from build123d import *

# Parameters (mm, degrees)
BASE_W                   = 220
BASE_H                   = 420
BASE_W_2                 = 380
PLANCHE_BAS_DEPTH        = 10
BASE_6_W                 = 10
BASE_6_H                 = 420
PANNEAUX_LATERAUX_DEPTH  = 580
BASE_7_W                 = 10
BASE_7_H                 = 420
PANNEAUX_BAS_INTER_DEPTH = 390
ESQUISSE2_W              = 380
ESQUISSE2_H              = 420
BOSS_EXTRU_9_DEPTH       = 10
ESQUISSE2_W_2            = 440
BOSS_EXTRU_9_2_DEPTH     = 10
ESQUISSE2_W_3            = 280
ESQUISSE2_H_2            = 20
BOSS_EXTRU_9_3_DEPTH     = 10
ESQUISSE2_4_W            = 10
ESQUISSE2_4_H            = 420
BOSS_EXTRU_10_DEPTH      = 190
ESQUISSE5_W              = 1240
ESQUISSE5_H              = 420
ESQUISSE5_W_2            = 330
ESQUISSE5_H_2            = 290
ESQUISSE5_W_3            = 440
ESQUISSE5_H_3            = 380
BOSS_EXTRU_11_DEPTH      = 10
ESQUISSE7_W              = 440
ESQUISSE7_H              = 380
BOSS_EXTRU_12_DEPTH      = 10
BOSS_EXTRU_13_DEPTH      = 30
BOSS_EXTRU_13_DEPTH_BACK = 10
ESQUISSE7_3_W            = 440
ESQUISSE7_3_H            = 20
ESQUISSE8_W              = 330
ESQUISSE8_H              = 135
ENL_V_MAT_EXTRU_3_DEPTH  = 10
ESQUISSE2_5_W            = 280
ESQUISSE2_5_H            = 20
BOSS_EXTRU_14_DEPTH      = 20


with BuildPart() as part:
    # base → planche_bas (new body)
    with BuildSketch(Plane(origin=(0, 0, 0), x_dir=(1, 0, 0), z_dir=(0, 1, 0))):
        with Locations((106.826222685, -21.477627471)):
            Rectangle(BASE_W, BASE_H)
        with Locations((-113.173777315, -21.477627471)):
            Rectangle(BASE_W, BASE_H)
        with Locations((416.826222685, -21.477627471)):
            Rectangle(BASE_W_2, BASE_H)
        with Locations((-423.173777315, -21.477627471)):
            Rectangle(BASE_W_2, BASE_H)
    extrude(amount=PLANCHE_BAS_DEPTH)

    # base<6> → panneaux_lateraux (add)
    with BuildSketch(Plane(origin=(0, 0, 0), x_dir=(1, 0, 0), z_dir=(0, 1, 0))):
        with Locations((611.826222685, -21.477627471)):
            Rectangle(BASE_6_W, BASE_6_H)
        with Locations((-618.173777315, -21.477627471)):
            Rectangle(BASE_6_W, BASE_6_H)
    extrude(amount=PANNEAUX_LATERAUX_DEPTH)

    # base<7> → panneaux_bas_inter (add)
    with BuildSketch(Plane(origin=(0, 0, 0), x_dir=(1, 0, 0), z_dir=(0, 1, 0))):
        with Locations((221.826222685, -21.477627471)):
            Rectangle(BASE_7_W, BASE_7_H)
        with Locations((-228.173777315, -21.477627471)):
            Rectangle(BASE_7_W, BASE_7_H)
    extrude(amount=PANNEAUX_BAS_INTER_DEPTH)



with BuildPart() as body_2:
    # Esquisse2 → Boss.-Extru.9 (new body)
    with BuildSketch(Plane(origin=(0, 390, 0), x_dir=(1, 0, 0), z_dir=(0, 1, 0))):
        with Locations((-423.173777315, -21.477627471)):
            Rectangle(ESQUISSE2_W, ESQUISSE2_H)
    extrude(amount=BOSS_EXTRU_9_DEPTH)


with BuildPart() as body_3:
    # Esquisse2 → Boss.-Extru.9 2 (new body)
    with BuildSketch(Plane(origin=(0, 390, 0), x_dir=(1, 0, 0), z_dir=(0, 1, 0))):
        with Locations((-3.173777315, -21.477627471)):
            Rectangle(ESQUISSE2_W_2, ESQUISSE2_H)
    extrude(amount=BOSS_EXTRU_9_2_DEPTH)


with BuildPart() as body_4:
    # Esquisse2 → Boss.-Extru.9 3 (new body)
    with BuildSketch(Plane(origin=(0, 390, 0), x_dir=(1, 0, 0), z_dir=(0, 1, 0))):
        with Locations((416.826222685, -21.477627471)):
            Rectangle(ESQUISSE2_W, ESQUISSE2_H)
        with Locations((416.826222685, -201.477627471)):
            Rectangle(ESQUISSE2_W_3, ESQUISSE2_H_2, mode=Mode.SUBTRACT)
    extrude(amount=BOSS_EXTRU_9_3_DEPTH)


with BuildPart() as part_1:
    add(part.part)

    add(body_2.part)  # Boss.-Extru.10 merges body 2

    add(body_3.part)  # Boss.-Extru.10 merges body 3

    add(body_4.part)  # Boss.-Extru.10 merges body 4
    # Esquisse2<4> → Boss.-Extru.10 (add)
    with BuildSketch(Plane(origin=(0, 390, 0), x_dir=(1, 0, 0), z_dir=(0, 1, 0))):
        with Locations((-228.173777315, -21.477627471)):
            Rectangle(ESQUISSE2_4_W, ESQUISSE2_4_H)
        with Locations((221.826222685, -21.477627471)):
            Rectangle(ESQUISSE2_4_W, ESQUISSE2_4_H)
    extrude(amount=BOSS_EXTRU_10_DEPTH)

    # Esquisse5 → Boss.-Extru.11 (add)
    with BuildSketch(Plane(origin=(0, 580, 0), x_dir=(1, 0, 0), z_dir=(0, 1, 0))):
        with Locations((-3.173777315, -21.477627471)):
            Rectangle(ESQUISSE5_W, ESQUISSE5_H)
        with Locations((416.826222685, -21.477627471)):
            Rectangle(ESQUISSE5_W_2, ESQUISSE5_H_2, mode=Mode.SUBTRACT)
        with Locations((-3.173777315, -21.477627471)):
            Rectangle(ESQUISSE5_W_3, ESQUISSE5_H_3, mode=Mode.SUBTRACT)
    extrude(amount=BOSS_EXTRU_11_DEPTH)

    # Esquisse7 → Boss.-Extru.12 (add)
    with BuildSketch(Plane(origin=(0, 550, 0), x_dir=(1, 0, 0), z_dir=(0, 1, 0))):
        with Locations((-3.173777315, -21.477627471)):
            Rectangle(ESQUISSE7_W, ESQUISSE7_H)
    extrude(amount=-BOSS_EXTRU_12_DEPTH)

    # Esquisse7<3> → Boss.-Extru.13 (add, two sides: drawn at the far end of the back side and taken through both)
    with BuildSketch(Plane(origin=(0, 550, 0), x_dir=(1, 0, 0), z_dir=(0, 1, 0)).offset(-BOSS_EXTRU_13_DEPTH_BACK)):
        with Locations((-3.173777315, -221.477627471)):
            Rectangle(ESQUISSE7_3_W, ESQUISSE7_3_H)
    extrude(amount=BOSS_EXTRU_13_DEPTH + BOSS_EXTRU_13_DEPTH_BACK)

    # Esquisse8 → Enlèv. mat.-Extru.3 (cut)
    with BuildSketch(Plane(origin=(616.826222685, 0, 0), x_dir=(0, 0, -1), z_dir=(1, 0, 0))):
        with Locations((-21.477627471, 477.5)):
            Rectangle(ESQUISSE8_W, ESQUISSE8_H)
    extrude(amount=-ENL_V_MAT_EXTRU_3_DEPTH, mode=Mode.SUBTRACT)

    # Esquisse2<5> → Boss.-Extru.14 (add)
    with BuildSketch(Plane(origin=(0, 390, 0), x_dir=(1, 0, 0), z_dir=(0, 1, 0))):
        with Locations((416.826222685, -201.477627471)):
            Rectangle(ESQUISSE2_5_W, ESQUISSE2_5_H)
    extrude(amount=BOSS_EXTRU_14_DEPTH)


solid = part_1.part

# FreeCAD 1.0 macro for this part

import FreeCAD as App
import Part
import Sketcher
from FreeCAD import Vector


def add_polygon(sketch, points):
    """Adds a closed chain of lines whose ends are joined by coincident constraints."""
    first, n = sketch.GeometryCount, len(points)
    for a, b in zip(points, points[1:] + points[:1]):
        sketch.addGeometry(Part.LineSegment(App.Vector(*a, 0), App.Vector(*b, 0)), False)
    for i in range(n):
        sketch.addConstraint(Sketcher.Constraint("Coincident", first + i, 2, first + (i + 1) % n, 1))

doc = App.newDocument("Part")
body = doc.addObject("PartDesign::Body", "Body")
body.AllowCompound = True

# Sketch on XZ plane
sketch1 = body.newObject("Sketcher::SketchObject", "Sketch")
sketch1.AttachmentSupport = (doc.getObject("XZ_Plane"), [""])
sketch1.MapMode = "FlatFace"
add_polygon(sketch1, [(216.826223, 231.477627), (216.826223, -188.522373), (-223.173777, -188.522373), (-223.173777, 231.477627)])  # lines 0-3
add_polygon(sketch1, [(226.826223, -188.522373), (226.826223, 231.477627), (606.826223, 231.477627), (606.826223, -188.522373)])  # lines 4-7
add_polygon(sketch1, [(-613.173777, -188.522373), (-613.173777, 231.477627), (-233.173777, 231.477627), (-233.173777, -188.522373)])  # lines 8-11
sketch1.addConstraint([
    Sketcher.Constraint("Vertical", 0),
    Sketcher.Constraint("Horizontal", 1),
    Sketcher.Constraint("Vertical", 2),
    Sketcher.Constraint("Horizontal", 3),
    Sketcher.Constraint("Vertical", 4),
    Sketcher.Constraint("Horizontal", 5),
    Sketcher.Constraint("Vertical", 6),
    Sketcher.Constraint("Horizontal", 7),
    Sketcher.Constraint("Vertical", 8),
    Sketcher.Constraint("Horizontal", 9),
    Sketcher.Constraint("Vertical", 10),
    Sketcher.Constraint("Horizontal", 11),
    Sketcher.Constraint("Horizontal", 3, 2, 4, 2),
    Sketcher.Constraint("Horizontal", 1, 2, 6, 2),
    Sketcher.Constraint("Horizontal", 5, 2, 8, 2),
    Sketcher.Constraint("Horizontal", 7, 2, 10, 2),
    Sketcher.Constraint("Equal", 7, 9),
    Sketcher.Constraint("DistanceX", 1, 2, 1, 1, 440.0),
    Sketcher.Constraint("DistanceX", 5, 1, 5, 2, 380.0),
    Sketcher.Constraint("DistanceY", 0, 2, 0, 1, 420.0),
    Sketcher.Constraint("DistanceX", 3, 2, 4, 2, 10.0),
    Sketcher.Constraint("DistanceX", 8, 2, 2, 2, 390.0),
    Sketcher.Constraint("DistanceX", -1, 1, 0, 2, 216.826223),
    Sketcher.Constraint("DistanceY", 0, 2, -1, 1, 188.522373),
])
pad1 = body.newObject("PartDesign::Pad", "Pad")
pad1.Profile = sketch1
pad1.Length = 10
pad1.Reversed = True

# Sketch on XZ plane
sketch2 = body.newObject("Sketcher::SketchObject", "Sketch001")
sketch2.AttachmentSupport = (doc.getObject("XZ_Plane"), [""])
sketch2.MapMode = "FlatFace"
add_polygon(sketch2, [(606.826223, -188.522373), (606.826223, 231.477627), (616.826223, 231.477627), (616.826223, -188.522373)])  # lines 0-3
add_polygon(sketch2, [(-623.173777, -188.522373), (-623.173777, 231.477627), (-613.173777, 231.477627), (-613.173777, -188.522373)])  # lines 4-7
sketch2.addConstraint([
    Sketcher.Constraint("Vertical", 0),
    Sketcher.Constraint("Horizontal", 1),
    Sketcher.Constraint("Vertical", 2),
    Sketcher.Constraint("Horizontal", 3),
    Sketcher.Constraint("Vertical", 4),
    Sketcher.Constraint("Horizontal", 5),
    Sketcher.Constraint("Vertical", 6),
    Sketcher.Constraint("Horizontal", 7),
    Sketcher.Constraint("Horizontal", 1, 2, 4, 2),
    Sketcher.Constraint("Horizontal", 3, 2, 6, 2),
    Sketcher.Constraint("Equal", 3, 5),
    Sketcher.Constraint("DistanceX", 1, 1, 1, 2, 10.0),
    Sketcher.Constraint("DistanceY", 0, 1, 0, 2, 420.0),
    Sketcher.Constraint("DistanceX", 4, 2, 0, 2, 1230.0),
    Sketcher.Constraint("DistanceX", -1, 1, 0, 2, 606.826223),
    Sketcher.Constraint("DistanceY", -1, 1, 0, 2, 231.477627),
])
pad2 = body.newObject("PartDesign::Pad", "Pad001")
pad2.Profile = sketch2
pad2.Length = 580
pad2.Reversed = True

# Sketch on XZ plane
sketch3 = body.newObject("Sketcher::SketchObject", "Sketch002")
sketch3.AttachmentSupport = (doc.getObject("XZ_Plane"), [""])
sketch3.MapMode = "FlatFace"
add_polygon(sketch3, [(216.826223, -188.522373), (216.826223, 231.477627), (226.826223, 231.477627), (226.826223, -188.522373)])  # lines 0-3
add_polygon(sketch3, [(-233.173777, -188.522373), (-233.173777, 231.477627), (-223.173777, 231.477627), (-223.173777, -188.522373)])  # lines 4-7
sketch3.addConstraint([
    Sketcher.Constraint("Vertical", 0),
    Sketcher.Constraint("Horizontal", 1),
    Sketcher.Constraint("Vertical", 2),
    Sketcher.Constraint("Horizontal", 3),
    Sketcher.Constraint("Vertical", 4),
    Sketcher.Constraint("Horizontal", 5),
    Sketcher.Constraint("Vertical", 6),
    Sketcher.Constraint("Horizontal", 7),
    Sketcher.Constraint("Horizontal", 1, 2, 4, 2),
    Sketcher.Constraint("Horizontal", 3, 2, 6, 2),
    Sketcher.Constraint("Equal", 3, 5),
    Sketcher.Constraint("DistanceX", 1, 1, 1, 2, 10.0),
    Sketcher.Constraint("DistanceY", 0, 1, 0, 2, 420.0),
    Sketcher.Constraint("DistanceX", 4, 2, 0, 2, 450.0),
    Sketcher.Constraint("DistanceX", -1, 1, 0, 2, 216.826223),
    Sketcher.Constraint("DistanceY", -1, 1, 0, 2, 231.477627),
])
pad3 = body.newObject("PartDesign::Pad", "Pad002")
pad3.Profile = sketch3
pad3.Length = 390
pad3.Reversed = True
body2 = doc.addObject("PartDesign::Body", "Body001")

# Sketch on XZ plane
sketch4 = body2.newObject("Sketcher::SketchObject", "Sketch003")
sketch4.AttachmentSupport = (doc.getObject("XZ_Plane001"), [""])
sketch4.MapMode = "FlatFace"
sketch4.AttachmentOffset = App.Placement(Vector(0, 0, -390), App.Rotation())
add_polygon(sketch4, [(-613.173777, -188.522373), (-613.173777, 231.477627), (-233.173777, 231.477627), (-233.173777, -188.522373)])  # lines 0-3
sketch4.addConstraint([
    Sketcher.Constraint("Vertical", 0),
    Sketcher.Constraint("Horizontal", 1),
    Sketcher.Constraint("Vertical", 2),
    Sketcher.Constraint("Horizontal", 3),
    Sketcher.Constraint("DistanceX", 1, 1, 1, 2, 380.0),
    Sketcher.Constraint("DistanceY", 0, 1, 0, 2, 420.0),
    Sketcher.Constraint("DistanceX", 0, 2, -1, 1, 613.173777),
    Sketcher.Constraint("DistanceY", -1, 1, 0, 2, 231.477627),
])
pad4 = body2.newObject("PartDesign::Pad", "Pad003")
pad4.Profile = sketch4
pad4.Length = 10
pad4.Reversed = True
body3 = doc.addObject("PartDesign::Body", "Body002")

# Sketch on XZ plane
sketch5 = body3.newObject("Sketcher::SketchObject", "Sketch004")
sketch5.AttachmentSupport = (doc.getObject("XZ_Plane002"), [""])
sketch5.MapMode = "FlatFace"
sketch5.AttachmentOffset = App.Placement(Vector(0, 0, -390), App.Rotation())
add_polygon(sketch5, [(-223.173777, -188.522373), (-223.173777, 231.477627), (216.826223, 231.477627), (216.826223, -188.522373)])  # lines 0-3
sketch5.addConstraint([
    Sketcher.Constraint("Vertical", 0),
    Sketcher.Constraint("Horizontal", 1),
    Sketcher.Constraint("Vertical", 2),
    Sketcher.Constraint("Horizontal", 3),
    Sketcher.Constraint("DistanceX", 1, 1, 1, 2, 440.0),
    Sketcher.Constraint("DistanceY", 0, 1, 0, 2, 420.0),
    Sketcher.Constraint("DistanceX", 0, 2, -1, 1, 223.173777),
    Sketcher.Constraint("DistanceY", -1, 1, 0, 2, 231.477627),
])
pad5 = body3.newObject("PartDesign::Pad", "Pad004")
pad5.Profile = sketch5
pad5.Length = 10
pad5.Reversed = True
body4 = doc.addObject("PartDesign::Body", "Body003")

# Sketch on XZ plane
sketch6 = body4.newObject("Sketcher::SketchObject", "Sketch005")
sketch6.AttachmentSupport = (doc.getObject("XZ_Plane003"), [""])
sketch6.MapMode = "FlatFace"
sketch6.AttachmentOffset = App.Placement(Vector(0, 0, -390), App.Rotation())
add_polygon(sketch6, [(226.826223, -188.522373), (226.826223, 231.477627), (606.826223, 231.477627), (606.826223, -188.522373)])  # lines 0-3
add_polygon(sketch6, [(556.826223, 211.477627), (276.826223, 211.477627), (276.826223, 191.477627), (556.826223, 191.477627)])  # lines 4-7
sketch6.addConstraint([
    Sketcher.Constraint("Vertical", 0),
    Sketcher.Constraint("Horizontal", 1),
    Sketcher.Constraint("Vertical", 2),
    Sketcher.Constraint("Horizontal", 3),
    Sketcher.Constraint("Horizontal", 4),
    Sketcher.Constraint("Vertical", 5),
    Sketcher.Constraint("Horizontal", 6),
    Sketcher.Constraint("Vertical", 7),
    Sketcher.Constraint("DistanceX", 1, 1, 1, 2, 380.0),
    Sketcher.Constraint("DistanceX", 4, 2, 4, 1, 280.0),
    Sketcher.Constraint("DistanceY", 0, 1, 0, 2, 420.0),
    Sketcher.Constraint("DistanceY", 5, 2, 5, 1, 20.0),
    Sketcher.Constraint("DistanceX", 0, 2, 4, 2, 50.0),
    Sketcher.Constraint("DistanceY", 4, 2, 0, 2, 20.0),
    Sketcher.Constraint("DistanceX", -1, 1, 0, 2, 226.826223),
    Sketcher.Constraint("DistanceY", -1, 1, 0, 2, 231.477627),
])
pad6 = body4.newObject("PartDesign::Pad", "Pad005")
pad6.Profile = sketch6
pad6.Length = 10
pad6.Reversed = True
body.AllowCompound = True
doc.recompute()

boolean = body.newObject("PartDesign::Boolean", "Boolean")
boolean.Type = "Fuse"
boolean.addObjects([body2])
doc.recompute()

boolean2 = body.newObject("PartDesign::Boolean", "Boolean001")
boolean2.Type = "Fuse"
boolean2.addObjects([body3])
doc.recompute()

boolean3 = body.newObject("PartDesign::Boolean", "Boolean002")
boolean3.Type = "Fuse"
boolean3.addObjects([body4])

# Sketch on XZ plane
sketch7 = body.newObject("Sketcher::SketchObject", "Sketch006")
sketch7.AttachmentSupport = (doc.getObject("XZ_Plane"), [""])
sketch7.MapMode = "FlatFace"
sketch7.AttachmentOffset = App.Placement(Vector(0, 0, -390), App.Rotation())
add_polygon(sketch7, [(-233.173777, -188.522373), (-233.173777, 231.477627), (-223.173777, 231.477627), (-223.173777, -188.522373)])  # lines 0-3
add_polygon(sketch7, [(216.826223, -188.522373), (216.826223, 231.477627), (226.826223, 231.477627), (226.826223, -188.522373)])  # lines 4-7
sketch7.addConstraint([
    Sketcher.Constraint("Vertical", 0),
    Sketcher.Constraint("Horizontal", 1),
    Sketcher.Constraint("Vertical", 2),
    Sketcher.Constraint("Horizontal", 3),
    Sketcher.Constraint("Vertical", 4),
    Sketcher.Constraint("Horizontal", 5),
    Sketcher.Constraint("Vertical", 6),
    Sketcher.Constraint("Horizontal", 7),
    Sketcher.Constraint("Horizontal", 1, 2, 4, 2),
    Sketcher.Constraint("Horizontal", 3, 2, 6, 2),
    Sketcher.Constraint("Equal", 3, 5),
    Sketcher.Constraint("DistanceX", 1, 1, 1, 2, 10.0),
    Sketcher.Constraint("DistanceY", 0, 1, 0, 2, 420.0),
    Sketcher.Constraint("DistanceX", 1, 2, 4, 2, 440.0),
    Sketcher.Constraint("DistanceX", 0, 2, -1, 1, 233.173777),
    Sketcher.Constraint("DistanceY", -1, 1, 0, 2, 231.477627),
])
pad7 = body.newObject("PartDesign::Pad", "Pad006")
pad7.Profile = sketch7
pad7.Length = 190
pad7.Reversed = True

# Sketch on XZ plane
sketch8 = body.newObject("Sketcher::SketchObject", "Sketch007")
sketch8.AttachmentSupport = (doc.getObject("XZ_Plane"), [""])
sketch8.MapMode = "FlatFace"
sketch8.AttachmentOffset = App.Placement(Vector(0, 0, -580), App.Rotation())
add_polygon(sketch8, [(-623.173777, -188.522373), (-623.173777, 231.477627), (616.826223, 231.477627), (616.826223, -188.522373)])  # lines 0-3
add_polygon(sketch8, [(216.826223, 211.477627), (-223.173777, 211.477627), (-223.173777, -168.522373), (216.826223, -168.522373)])  # lines 4-7
add_polygon(sketch8, [(581.826223, 166.477627), (251.826223, 166.477627), (251.826223, -123.522373), (581.826223, -123.522373)])  # lines 8-11
sketch8.addConstraint([
    Sketcher.Constraint("Vertical", 0),
    Sketcher.Constraint("Horizontal", 1),
    Sketcher.Constraint("Vertical", 2),
    Sketcher.Constraint("Horizontal", 3),
    Sketcher.Constraint("Horizontal", 4),
    Sketcher.Constraint("Vertical", 5),
    Sketcher.Constraint("Horizontal", 6),
    Sketcher.Constraint("Vertical", 7),
    Sketcher.Constraint("Horizontal", 8),
    Sketcher.Constraint("Vertical", 9),
    Sketcher.Constraint("Horizontal", 10),
    Sketcher.Constraint("Vertical", 11),
    Sketcher.Constraint("DistanceX", 1, 1, 1, 2, 1240.0),
    Sketcher.Constraint("DistanceX", 4, 2, 4, 1, 440.0),
    Sketcher.Constraint("DistanceX", 8, 2, 8, 1, 330.0),
    Sketcher.Constraint("DistanceY", 0, 1, 0, 2, 420.0),
    Sketcher.Constraint("DistanceY", 5, 2, 5, 1, 380.0),
    Sketcher.Constraint("DistanceY", 9, 2, 9, 1, 290.0),
    Sketcher.Constraint("DistanceX", 0, 2, 4, 2, 400.0),
    Sketcher.Constraint("DistanceY", 4, 2, 0, 2, 20.0),
    Sketcher.Constraint("DistanceX", 7, 2, 8, 2, 35.0),
    Sketcher.Constraint("DistanceY", 8, 2, 7, 2, 45.0),
    Sketcher.Constraint("DistanceX", 0, 2, -1, 1, 623.173777),
    Sketcher.Constraint("DistanceY", -1, 1, 0, 2, 231.477627),
])
pad8 = body.newObject("PartDesign::Pad", "Pad007")
pad8.Profile = sketch8
pad8.Length = 10
pad8.Reversed = True

# Sketch on XZ plane
sketch9 = body.newObject("Sketcher::SketchObject", "Sketch008")
sketch9.AttachmentSupport = (doc.getObject("XZ_Plane"), [""])
sketch9.MapMode = "FlatFace"
sketch9.AttachmentOffset = App.Placement(Vector(0, 0, -550), App.Rotation())
add_polygon(sketch9, [(-223.173777, -168.522373), (-223.173777, 211.477627), (216.826223, 211.477627), (216.826223, -168.522373)])  # lines 0-3
sketch9.addConstraint([
    Sketcher.Constraint("Vertical", 0),
    Sketcher.Constraint("Horizontal", 1),
    Sketcher.Constraint("Vertical", 2),
    Sketcher.Constraint("Horizontal", 3),
    Sketcher.Constraint("DistanceX", 1, 1, 1, 2, 440.0),
    Sketcher.Constraint("DistanceY", 0, 1, 0, 2, 380.0),
    Sketcher.Constraint("DistanceX", 0, 2, -1, 1, 223.173777),
    Sketcher.Constraint("DistanceY", -1, 1, 0, 2, 211.477627),
])
pad9 = body.newObject("PartDesign::Pad", "Pad008")
pad9.Profile = sketch9
pad9.Length = 10

# Sketch on XZ plane
sketch10 = body.newObject("Sketcher::SketchObject", "Sketch009")
sketch10.AttachmentSupport = (doc.getObject("XZ_Plane"), [""])
sketch10.MapMode = "FlatFace"
sketch10.AttachmentOffset = App.Placement(Vector(0, 0, -550), App.Rotation())
add_polygon(sketch10, [(-223.173777, 211.477627), (-223.173777, 231.477627), (216.826223, 231.477627), (216.826223, 211.477627)])  # lines 0-3
sketch10.addConstraint([
    Sketcher.Constraint("Vertical", 0),
    Sketcher.Constraint("Horizontal", 1),
    Sketcher.Constraint("Vertical", 2),
    Sketcher.Constraint("Horizontal", 3),
    Sketcher.Constraint("DistanceX", 1, 1, 1, 2, 440.0),
    Sketcher.Constraint("DistanceY", 0, 1, 0, 2, 20.0),
    Sketcher.Constraint("DistanceX", 0, 2, -1, 1, 223.173777),
    Sketcher.Constraint("DistanceY", -1, 1, 0, 2, 231.477627),
])
pad10 = body.newObject("PartDesign::Pad", "Pad009")
pad10.Profile = sketch10
pad10.Type = "TwoLengths"
pad10.Length = 30
pad10.Length2 = 10
pad10.Reversed = True

# Sketch on YZ plane
sketch11 = body.newObject("Sketcher::SketchObject", "Sketch010")
sketch11.AttachmentSupport = (doc.getObject("YZ_Plane"), [""])
sketch11.MapMode = "FlatFace"
sketch11.AttachmentOffset = App.Placement(Vector(0, 0, 616.826223), App.Rotation())
add_polygon(sketch11, [(545, 186.477627), (410, 186.477627), (410, -143.522373), (545, -143.522373)])  # lines 0-3
sketch11.addConstraint([
    Sketcher.Constraint("Horizontal", 0),
    Sketcher.Constraint("Vertical", 1),
    Sketcher.Constraint("Horizontal", 2),
    Sketcher.Constraint("Vertical", 3),
    Sketcher.Constraint("DistanceX", 0, 2, 0, 1, 135.0),
    Sketcher.Constraint("DistanceY", 1, 2, 1, 1, 330.0),
    Sketcher.Constraint("DistanceX", -1, 1, 0, 2, 410.0),
    Sketcher.Constraint("DistanceY", -1, 1, 0, 2, 186.477627),
])
pocket1 = body.newObject("PartDesign::Pocket", "Pocket")
pocket1.Profile = sketch11
pocket1.Length = 10

# Sketch on XZ plane
sketch12 = body.newObject("Sketcher::SketchObject", "Sketch011")
sketch12.AttachmentSupport = (doc.getObject("XZ_Plane"), [""])
sketch12.MapMode = "FlatFace"
sketch12.AttachmentOffset = App.Placement(Vector(0, 0, -390), App.Rotation())
add_polygon(sketch12, [(276.826223, 191.477627), (276.826223, 211.477627), (556.826223, 211.477627), (556.826223, 191.477627)])  # lines 0-3
sketch12.addConstraint([
    Sketcher.Constraint("Vertical", 0),
    Sketcher.Constraint("Horizontal", 1),
    Sketcher.Constraint("Vertical", 2),
    Sketcher.Constraint("Horizontal", 3),
    Sketcher.Constraint("DistanceX", 1, 1, 1, 2, 280.0),
    Sketcher.Constraint("DistanceY", 0, 1, 0, 2, 20.0),
    Sketcher.Constraint("DistanceX", -1, 1, 0, 2, 276.826223),
    Sketcher.Constraint("DistanceY", -1, 1, 0, 2, 211.477627),
])
pad11 = body.newObject("PartDesign::Pad", "Pad010")
pad11.Profile = sketch12
pad11.Length = 20
pad11.Reversed = True

doc.recompute()
